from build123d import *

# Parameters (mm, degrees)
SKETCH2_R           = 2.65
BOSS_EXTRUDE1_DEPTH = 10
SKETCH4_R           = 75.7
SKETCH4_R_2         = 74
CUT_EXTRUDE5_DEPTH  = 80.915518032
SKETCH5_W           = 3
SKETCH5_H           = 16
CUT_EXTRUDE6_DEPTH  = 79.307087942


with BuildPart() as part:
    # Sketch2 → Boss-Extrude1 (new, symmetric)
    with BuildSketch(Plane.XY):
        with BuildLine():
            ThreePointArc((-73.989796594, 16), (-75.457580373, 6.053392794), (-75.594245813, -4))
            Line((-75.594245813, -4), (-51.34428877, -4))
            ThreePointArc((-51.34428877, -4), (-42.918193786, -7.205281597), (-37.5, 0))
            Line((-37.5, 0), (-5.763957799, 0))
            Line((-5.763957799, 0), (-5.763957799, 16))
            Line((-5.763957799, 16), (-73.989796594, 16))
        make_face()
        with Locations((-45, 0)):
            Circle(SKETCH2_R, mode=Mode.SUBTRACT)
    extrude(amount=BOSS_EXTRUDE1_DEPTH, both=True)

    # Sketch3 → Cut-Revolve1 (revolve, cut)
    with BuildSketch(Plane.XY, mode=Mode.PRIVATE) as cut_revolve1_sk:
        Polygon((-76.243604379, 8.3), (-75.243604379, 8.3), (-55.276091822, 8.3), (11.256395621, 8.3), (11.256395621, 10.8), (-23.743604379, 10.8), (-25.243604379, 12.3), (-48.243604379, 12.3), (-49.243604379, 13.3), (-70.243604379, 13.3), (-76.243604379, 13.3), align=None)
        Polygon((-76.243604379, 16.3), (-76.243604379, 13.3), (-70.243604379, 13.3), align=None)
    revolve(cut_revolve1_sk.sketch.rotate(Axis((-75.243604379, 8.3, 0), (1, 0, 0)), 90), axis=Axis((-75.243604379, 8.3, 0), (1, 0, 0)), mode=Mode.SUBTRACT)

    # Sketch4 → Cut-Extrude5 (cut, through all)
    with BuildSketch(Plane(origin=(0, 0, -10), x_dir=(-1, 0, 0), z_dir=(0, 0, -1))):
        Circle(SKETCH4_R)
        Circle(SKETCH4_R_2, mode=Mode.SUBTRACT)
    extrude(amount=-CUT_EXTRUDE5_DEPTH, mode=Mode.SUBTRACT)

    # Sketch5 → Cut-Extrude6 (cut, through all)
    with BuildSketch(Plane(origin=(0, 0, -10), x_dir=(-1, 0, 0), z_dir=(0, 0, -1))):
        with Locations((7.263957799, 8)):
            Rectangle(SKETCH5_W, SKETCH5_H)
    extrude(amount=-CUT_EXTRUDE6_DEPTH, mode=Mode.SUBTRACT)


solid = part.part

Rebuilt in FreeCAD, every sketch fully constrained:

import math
import FreeCAD as App
import Part
import Sketcher
from FreeCAD import Vector
Q = App.Units.Quantity


def add_polygon(sketch, points):
    """Adds a closed chain of lines whose ends are joined by coincident constraints."""
    first, n = sketch.GeometryCount, len(points)
    for a, b in zip(points, points[1:] + points[:1]):
        sketch.addGeometry(Part.LineSegment(App.Vector(*a, 0), App.Vector(*b, 0)), False)
    for i in range(n):
        sketch.addConstraint(Sketcher.Constraint("Coincident", first + i, 2, first + (i + 1) % n, 1))

doc = App.newDocument("Part")
body = doc.addObject("PartDesign::Body", "Body")

# Sketch on XY plane
sketch1 = body.newObject("Sketcher::SketchObject", "Sketch")
sketch1.AttachmentSupport = (doc.getObject("XY_Plane"), [""])
sketch1.MapMode = "FlatFace"
sketch1.addGeometry(Part.ArcOfCircle(Part.Circle(Vector(0, 0, 0), Vector(0, 0, 1), 75.7), math.radians(167.797899), math.radians(183.028929)), False)
sketch1.addGeometry(Part.LineSegment(Vector(-75.594246, -4, 0), Vector(-51.344289, -4, 0)), False)
sketch1.addGeometry(Part.ArcOfCircle(Part.Circle(Vector(-45, 0, 0), Vector(0, 0, 1), 7.5), math.radians(-147.769047), math.radians(0)), False)
sketch1.addGeometry(Part.LineSegment(Vector(-37.5, 0, 0), Vector(-5.763958, 0, 0)), False)
sketch1.addGeometry(Part.LineSegment(Vector(-5.763958, 0, 0), Vector(-5.763958, 16, 0)), False)
sketch1.addGeometry(Part.LineSegment(Vector(-5.763958, 16, 0), Vector(-73.989797, 16, 0)), False)
sketch1.addGeometry(Part.Circle(Vector(-45, 0, 0), Vector(0, 0, 1), 2.65), False)
sketch1.addConstraint(Sketcher.Constraint("Coincident", 0, 2, 1, 1))
sketch1.addConstraint(Sketcher.Constraint("Coincident", 1, 2, 2, 1))
sketch1.addConstraint(Sketcher.Constraint("Coincident", 2, 2, 3, 1))
sketch1.addConstraint(Sketcher.Constraint("Coincident", 3, 2, 4, 1))
sketch1.addConstraint(Sketcher.Constraint("Coincident", 4, 2, 5, 1))
sketch1.addConstraint(Sketcher.Constraint("Coincident", 5, 2, 0, 1))
sketch1.addConstraint(Sketcher.Constraint("Horizontal", 1))
sketch1.addConstraint(Sketcher.Constraint("Horizontal", 3))
sketch1.addConstraint(Sketcher.Constraint("Vertical", 4))
sketch1.addConstraint(Sketcher.Constraint("Horizontal", 5))
sketch1.addConstraint(Sketcher.Constraint("Coincident", 0, 3, -1, 1))
sketch1.addConstraint(Sketcher.Constraint("Coincident", 6, 3, 2, 3))
sketch1.addConstraint(Sketcher.Constraint("PointOnObject", 2, 3, -1))
sketch1.addConstraint(Sketcher.Constraint("PointOnObject", 2, 2, -1))
sketch1.addConstraint(Sketcher.Constraint("Diameter", 6, 5.3))
sketch1.addConstraint(Sketcher.Constraint("Radius", 0, 75.7))
sketch1.addConstraint(Sketcher.Constraint("Radius", 2, 7.5))
sketch1.addConstraint(Sketcher.Constraint("DistanceY", 4, 1, 4, 2, 16.0))
sketch1.addConstraint(Sketcher.Constraint("DistanceX", 2, 3, -1, 1, 45.0))
sketch1.addConstraint(Sketcher.Constraint("DistanceY", 0, 2, -1, 1, 4.0))
sketch1.addConstraint(Sketcher.Constraint("DistanceX", 5, 2, 5, 1, 68.225839))
pad1 = body.newObject("PartDesign::Pad", "Pad")
pad1.Profile = sketch1
pad1.Length = 20
pad1.Midplane = True

# Sketch on XY plane
sketch2 = body.newObject("Sketcher::SketchObject", "Sketch001")
sketch2.AttachmentSupport = (doc.getObject("XY_Plane"), [""])
sketch2.MapMode = "FlatFace"
add_polygon(sketch2, [(-76.243604, 8.3), (11.256396, 8.3), (11.256396, 10.8), (-23.743604, 10.8), (-25.243604, 12.3), (-48.243604, 12.3), (-49.243604, 13.3), (-70.243604, 13.3), (-76.243604, 16.3)])  # lines 0-8
sketch2.addGeometry(Part.LineSegment(Vector(-76.243604, 8.3, 0), Vector(11.256396, 8.3, 0)), True)  # axis
sketch2.addConstraint(Sketcher.Constraint("Horizontal", 0))
sketch2.addConstraint(Sketcher.Constraint("Vertical", 1))
sketch2.addConstraint(Sketcher.Constraint("Horizontal", 2))
sketch2.addConstraint(Sketcher.Constraint("Horizontal", 4))
sketch2.addConstraint(Sketcher.Constraint("Horizontal", 6))
sketch2.addConstraint(Sketcher.Constraint("Vertical", 8))
sketch2.addConstraint(Sketcher.Constraint("Horizontal", 9))
sketch2.addConstraint(Sketcher.Constraint("Coincident", 9, 1, 8, 2))
sketch2.addConstraint(Sketcher.Constraint("Parallel", 3, 5))
sketch2.addConstraint(Sketcher.Constraint("Vertical", 1, 2, 9, 2))
sketch2.addConstraint(Sketcher.Constraint("DistanceX", 2, 2, 2, 1, 35.0))
sketch2.addConstraint(Sketcher.Constraint("DistanceX", 4, 2, 4, 1, 23.0))
sketch2.addConstraint(Sketcher.Constraint("DistanceX", 6, 2, 6, 1, 21.0))
sketch2.addConstraint(Sketcher.Constraint("DistanceY", 8, 2, 8, 1, 8.0))
sketch2.addConstraint(Sketcher.Constraint("Angle", 3, Q("135 deg")))
sketch2.addConstraint(Sketcher.Constraint("DistanceX", 0, 1, 0, 2, 87.5))
sketch2.addConstraint(Sketcher.Constraint("DistanceY", 1, 1, 1, 2, 2.5))
sketch2.addConstraint(Sketcher.Constraint("DistanceY", 0, 2, 3, 2, 4.0))
sketch2.addConstraint(Sketcher.Constraint("DistanceX", 5, 2, 4, 2, 1.0))
sketch2.addConstraint(Sketcher.Constraint("DistanceY", -1, 1, 0, 2, 8.3))
sketch2.addConstraint(Sketcher.Constraint("DistanceX", -1, 1, 0, 2, 11.256396))
groove = body.newObject("PartDesign::Groove", "Groove")
groove.Profile = sketch2
groove.ReferenceAxis = (sketch2, ["Axis0"])
groove.Angle = 360

# Sketch on XY plane
sketch3 = body.newObject("Sketcher::SketchObject", "Sketch002")
sketch3.AttachmentSupport = (doc.getObject("XY_Plane"), [""])
sketch3.MapMode = "FlatFace"
sketch3.AttachmentOffset = App.Placement(Vector(0, 0, -10), App.Rotation())
sketch3.addGeometry(Part.Circle(Vector(0, 0, 0), Vector(0, 0, 1), 75.7), False)
sketch3.addGeometry(Part.Circle(Vector(0, 0, 0), Vector(0, 0, 1), 74), False)
sketch3.addConstraint(Sketcher.Constraint("Coincident", 0, 3, -1, 1))
sketch3.addConstraint(Sketcher.Constraint("Coincident", 1, 3, -1, 1))
sketch3.addConstraint(Sketcher.Constraint("Diameter", 1, 148.0))
sketch3.addConstraint(Sketcher.Constraint("Diameter", 0, 151.4))
pocket1 = body.newObject("PartDesign::Pocket", "Pocket")
pocket1.Profile = sketch3
pocket1.Type = "ThroughAll"
pocket1.Reversed = True

# Sketch on XY plane
sketch4 = body.newObject("Sketcher::SketchObject", "Sketch003")
sketch4.AttachmentSupport = (doc.getObject("XY_Plane"), [""])
sketch4.MapMode = "FlatFace"
sketch4.AttachmentOffset = App.Placement(Vector(0, 0, -10), App.Rotation())
add_polygon(sketch4, [(-5.763958, 16), (-5.763958, 0), (-8.763958, 0), (-8.763958, 16)])  # lines 0-3
sketch4.addConstraint(Sketcher.Constraint("Vertical", 0))
sketch4.addConstraint(Sketcher.Constraint("Horizontal", 1))
sketch4.addConstraint(Sketcher.Constraint("Vertical", 2))
sketch4.addConstraint(Sketcher.Constraint("Horizontal", 3))
sketch4.addConstraint(Sketcher.Constraint("PointOnObject", 0, 2, -1))
sketch4.addConstraint(Sketcher.Constraint("DistanceX", 1, 2, 1, 1, 3.0))
sketch4.addConstraint(Sketcher.Constraint("DistanceY", 0, 2, 0, 1, 16.0))
sketch4.addConstraint(Sketcher.Constraint("DistanceX", 0, 2, -1, 1, 5.763958))
pocket2 = body.newObject("PartDesign::Pocket", "Pocket001")
pocket2.Profile = sketch4
pocket2.Type = "ThroughAll"
pocket2.Reversed = True

doc.recompute()
